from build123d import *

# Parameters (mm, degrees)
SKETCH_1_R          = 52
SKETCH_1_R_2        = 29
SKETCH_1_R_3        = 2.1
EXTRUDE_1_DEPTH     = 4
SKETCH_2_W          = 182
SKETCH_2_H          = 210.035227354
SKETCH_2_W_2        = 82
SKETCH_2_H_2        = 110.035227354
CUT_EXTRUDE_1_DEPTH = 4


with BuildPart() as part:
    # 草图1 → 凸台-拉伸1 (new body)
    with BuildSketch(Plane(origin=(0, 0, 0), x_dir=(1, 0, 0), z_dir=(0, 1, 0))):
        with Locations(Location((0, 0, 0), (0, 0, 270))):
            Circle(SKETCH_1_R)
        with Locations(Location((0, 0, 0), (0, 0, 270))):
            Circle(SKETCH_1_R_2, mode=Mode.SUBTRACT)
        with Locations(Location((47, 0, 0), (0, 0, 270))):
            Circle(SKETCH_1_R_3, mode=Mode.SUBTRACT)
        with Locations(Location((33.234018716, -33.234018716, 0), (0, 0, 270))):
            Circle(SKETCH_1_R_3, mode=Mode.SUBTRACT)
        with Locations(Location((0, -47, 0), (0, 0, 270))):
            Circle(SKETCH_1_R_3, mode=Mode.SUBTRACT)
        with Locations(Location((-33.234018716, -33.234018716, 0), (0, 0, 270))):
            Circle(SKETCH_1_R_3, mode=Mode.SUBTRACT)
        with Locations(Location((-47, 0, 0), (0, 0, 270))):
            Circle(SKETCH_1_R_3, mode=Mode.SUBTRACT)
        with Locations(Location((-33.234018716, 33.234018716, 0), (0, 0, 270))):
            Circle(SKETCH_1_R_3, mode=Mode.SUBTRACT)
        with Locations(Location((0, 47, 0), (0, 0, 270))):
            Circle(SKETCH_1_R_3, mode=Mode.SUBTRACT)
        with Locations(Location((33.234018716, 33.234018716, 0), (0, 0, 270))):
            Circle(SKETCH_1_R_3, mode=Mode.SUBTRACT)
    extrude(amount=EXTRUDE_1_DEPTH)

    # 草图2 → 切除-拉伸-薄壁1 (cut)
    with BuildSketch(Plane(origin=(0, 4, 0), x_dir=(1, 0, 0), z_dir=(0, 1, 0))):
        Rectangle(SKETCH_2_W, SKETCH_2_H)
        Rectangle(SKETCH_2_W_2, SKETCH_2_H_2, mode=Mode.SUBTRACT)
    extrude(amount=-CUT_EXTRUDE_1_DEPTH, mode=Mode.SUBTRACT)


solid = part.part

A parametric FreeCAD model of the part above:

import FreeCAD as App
import Part
import Sketcher

V = App.Vector


def add_polygon(sketch, points):
    """Adds a closed chain of lines whose ends are joined by coincident constraints."""
    first, n = sketch.GeometryCount, len(points)
    for a, b in zip(points, points[1:] + points[:1]):
        sketch.addGeometry(Part.LineSegment(App.Vector(*a, 0), App.Vector(*b, 0)), False)
    for i in range(n):
        sketch.addConstraint(Sketcher.Constraint("Coincident", first + i, 2, first + (i + 1) % n, 1))

doc = App.newDocument("Part")
body = doc.addObject("PartDesign::Body", "Body")

# Sketch on XZ plane
sketch1 = body.newObject("Sketcher::SketchObject", "Sketch")
sketch1.AttachmentSupport = (doc.getObject("XZ_Plane"), [""])
sketch1.MapMode = "FlatFace"
sketch1.addGeometry([
    Part.Circle(V(0, 0, 0), V(0, 0, 1), 52),  # 0
    Part.Circle(V(-33.2, -33.2, 0), V(0, 0, 1), 2.1),  # 1
    Part.Circle(V(0, -47, 0), V(0, 0, 1), 2.1),  # 2
    Part.Circle(V(-47, 0, 0), V(0, 0, 1), 2.1),  # 3
    Part.Circle(V(-33.2, 33.2, 0), V(0, 0, 1), 2.1),  # 4
    Part.Circle(V(33.2, -33.2, 0), V(0, 0, 1), 2.1),  # 5
    Part.Circle(V(47, 0, 0), V(0, 0, 1), 2.1),  # 6
    Part.Circle(V(0, 0, 0), V(0, 0, 1), 29),  # 7
    Part.Circle(V(0, 47, 0), V(0, 0, 1), 2.1),  # 8
    Part.Circle(V(33.2, 33.2, 0), V(0, 0, 1), 2.1),  # 9
], False)
sketch1.addConstraint([
    Sketcher.Constraint("Coincident", 0, 3, -1, 1),
    Sketcher.Constraint("Coincident", 7, 3, -1, 1),
    Sketcher.Constraint("Equal", 1, 2),
    Sketcher.Constraint("Equal", 2, 3),
    Sketcher.Constraint("Equal", 3, 4),
    Sketcher.Constraint("Equal", 4, 5),
    Sketcher.Constraint("Equal", 5, 6),
    Sketcher.Constraint("Equal", 6, 8),
    Sketcher.Constraint("Equal", 8, 9),
    Sketcher.Constraint("Symmetric", 4, 3, 5, 3, -1, 1),
    Sketcher.Constraint("Symmetric", 3, 3, 6, 3, -1, 1),
    Sketcher.Constraint("Symmetric", 2, 3, 8, 3, -1, 1),
    Sketcher.Constraint("Symmetric", 1, 3, 9, 3, -1, 1),
    Sketcher.Constraint("Symmetric", 1, 3, 5, 3, -2),
    Sketcher.Constraint("PointOnObject", 2, 3, -2),
    Sketcher.Constraint("PointOnObject", 3, 3, -1),
    Sketcher.Constraint("Diameter", 0, 104.0),
    Sketcher.Constraint("Diameter", 7, 58.0),
    Sketcher.Constraint("Diameter", 1, 4.2),
    Sketcher.Constraint("DistanceY", 2, 3, -1, 1, 47.0),
    Sketcher.Constraint("DistanceX", 3, 3, -1, 1, 47.0),
    Sketcher.Constraint("DistanceX", 1, 3, -1, 1, 33.234019),
    Sketcher.Constraint("DistanceY", 1, 3, -1, 1, 33.234019),
])
pad1 = body.newObject("PartDesign::Pad", "Pad")
pad1.Profile = sketch1
pad1.Length = 4
pad1.Reversed = True

# Sketch on XZ plane
sketch2 = body.newObject("Sketcher::SketchObject", "Sketch001")
sketch2.AttachmentSupport = (doc.getObject("XZ_Plane"), [""])
sketch2.MapMode = "FlatFace"
sketch2.AttachmentOffset = App.Placement(V(0, 0, -4), App.Rotation())
add_polygon(sketch2, [(-91, -105), (-91, 105), (91, 105), (91, -105)])  # lines 0-3
add_polygon(sketch2, [(41, 55), (-41, 55), (-41, -55), (41, -55)])  # lines 4-7
sketch2.addConstraint([
    Sketcher.Constraint("Vertical", 0),
    Sketcher.Constraint("Horizontal", 1),
    Sketcher.Constraint("Vertical", 2),
    Sketcher.Constraint("Horizontal", 3),
    Sketcher.Constraint("Horizontal", 4),
    Sketcher.Constraint("Vertical", 5),
    Sketcher.Constraint("Horizontal", 6),
    Sketcher.Constraint("Vertical", 7),
    Sketcher.Constraint("Symmetric", 0, 2, 2, 2, -1, 1),
    Sketcher.Constraint("Symmetric", 4, 2, 6, 2, -1, 1),
    Sketcher.Constraint("DistanceX", 1, 1, 1, 2, 182.0),
    Sketcher.Constraint("DistanceX", 4, 2, 4, 1, 82.0),
    Sketcher.Constraint("DistanceY", 4, 2, 0, 2, 50.0),
    Sketcher.Constraint("DistanceY", 0, 1, 0, 2, 210.035227),
])
pocket1 = body.newObject("PartDesign::Pocket", "Pocket")
pocket1.Profile = sketch2
pocket1.Length = 4
pocket1.Reversed = True

doc.recompute()
